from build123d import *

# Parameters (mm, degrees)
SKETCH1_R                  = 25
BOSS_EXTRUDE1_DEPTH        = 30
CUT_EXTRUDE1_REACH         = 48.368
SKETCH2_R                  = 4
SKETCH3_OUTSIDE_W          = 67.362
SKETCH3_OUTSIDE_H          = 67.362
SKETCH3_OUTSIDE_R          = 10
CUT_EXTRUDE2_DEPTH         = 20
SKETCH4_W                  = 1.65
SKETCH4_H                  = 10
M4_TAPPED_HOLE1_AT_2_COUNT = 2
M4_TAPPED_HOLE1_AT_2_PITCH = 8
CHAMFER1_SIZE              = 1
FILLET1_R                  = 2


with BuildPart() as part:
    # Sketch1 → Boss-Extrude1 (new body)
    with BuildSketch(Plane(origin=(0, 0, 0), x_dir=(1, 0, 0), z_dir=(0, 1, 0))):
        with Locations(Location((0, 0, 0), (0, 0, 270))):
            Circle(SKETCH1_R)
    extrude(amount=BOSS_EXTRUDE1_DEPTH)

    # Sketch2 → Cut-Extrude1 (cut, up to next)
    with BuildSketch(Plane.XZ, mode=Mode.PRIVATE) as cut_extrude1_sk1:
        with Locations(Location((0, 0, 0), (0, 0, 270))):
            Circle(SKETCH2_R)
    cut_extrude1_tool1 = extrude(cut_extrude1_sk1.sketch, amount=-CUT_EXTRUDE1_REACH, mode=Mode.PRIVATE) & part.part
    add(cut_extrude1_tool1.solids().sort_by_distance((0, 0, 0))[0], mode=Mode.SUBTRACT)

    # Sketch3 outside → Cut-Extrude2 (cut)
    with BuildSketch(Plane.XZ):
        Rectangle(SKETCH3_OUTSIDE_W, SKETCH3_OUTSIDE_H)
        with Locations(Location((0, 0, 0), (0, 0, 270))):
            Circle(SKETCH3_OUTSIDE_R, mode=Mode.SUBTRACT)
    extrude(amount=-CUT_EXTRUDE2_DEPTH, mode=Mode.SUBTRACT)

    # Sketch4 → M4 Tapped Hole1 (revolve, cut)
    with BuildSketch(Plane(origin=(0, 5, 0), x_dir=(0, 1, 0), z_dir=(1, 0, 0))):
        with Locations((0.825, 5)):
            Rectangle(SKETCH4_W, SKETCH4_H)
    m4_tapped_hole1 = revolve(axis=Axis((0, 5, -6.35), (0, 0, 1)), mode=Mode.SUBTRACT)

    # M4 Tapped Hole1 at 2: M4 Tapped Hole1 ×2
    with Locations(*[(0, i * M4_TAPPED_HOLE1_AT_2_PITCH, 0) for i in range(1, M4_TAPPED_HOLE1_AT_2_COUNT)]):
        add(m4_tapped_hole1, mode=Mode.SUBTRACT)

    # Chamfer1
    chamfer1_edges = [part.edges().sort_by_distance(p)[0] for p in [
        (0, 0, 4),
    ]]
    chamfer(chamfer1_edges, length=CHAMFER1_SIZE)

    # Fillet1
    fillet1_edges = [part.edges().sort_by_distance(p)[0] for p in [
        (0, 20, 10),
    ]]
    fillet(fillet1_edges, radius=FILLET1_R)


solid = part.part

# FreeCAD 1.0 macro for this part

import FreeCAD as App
import Part
import Sketcher
Q = App.Units.Quantity


def edges_at(feature, points):
    """Names of the edges that pass closest to the given points."""
    edges = feature.Shape.Edges
    near = lambda p: min(range(len(edges)), key=lambda i: edges[i].distToShape(Part.Vertex(*p))[0])
    return sorted({f"Edge{near(p) + 1}" for p in points})

doc = App.newDocument("Part")
params = doc.addObject("Spreadsheet::Sheet", "Params")
for row, (alias, value) in enumerate([
    ("sketch1_diameter", "50 mm"),
    ("pad1_length", "30 mm"),
    ("sketch2_diameter", "8 mm"),
    ("sketch3_diameter", "20 mm"),
    ("pocket2_length", "20 mm"),
    ("sketch4_height", "10 mm"),
    ("sketch4_width", "1.65 mm"),
    ("groove_angle", "360 deg"),
    ("linearpattern_pitch", "8 mm"),
    ("chamfer_size", "1 mm"),
    ("fillet_radius", "2 mm"),
], start=1):
    params.set(f"A{row}", alias)
    params.set(f"B{row}", "=" + value)
    params.setAlias(f"B{row}", alias)

body = doc.addObject("PartDesign::Body", "Body")

# Sketch on XZ plane
sketch1 = doc.addObject("Sketcher::SketchObject", "Sketch")
body.addObject(sketch1)
sketch1.AttachmentSupport = (doc.XZ_Plane, [""])
sketch1.MapMode = "FlatFace"
sketch1.addGeometry(Part.Circle(App.Vector(0, 0, 0), App.Vector(0, 0, 1), 25), False)
sketch1.addConstraint(Sketcher.Constraint("Coincident", 0, 3, -1, 1))
sketch1.addConstraint(Sketcher.Constraint("Diameter", 0, Q("50 mm")))
sketch1.setExpression("Constraints[1]", "Params.sketch1_diameter")
pad1 = doc.addObject("PartDesign::Pad", "Pad")
body.addObject(pad1)
pad1.Profile = sketch1
pad1.setExpression("Length", "Params.pad1_length")
pad1.Reversed = True

# Sketch on XZ plane
sketch2 = doc.addObject("Sketcher::SketchObject", "Sketch001")
body.addObject(sketch2)
sketch2.AttachmentSupport = (doc.XZ_Plane, [""])
sketch2.MapMode = "FlatFace"
sketch2.addGeometry(Part.Circle(App.Vector(0, 0, 0), App.Vector(0, 0, 1), 4), False)
sketch2.addConstraint(Sketcher.Constraint("Coincident", 0, 3, -1, 1))
sketch2.addConstraint(Sketcher.Constraint("Diameter", 0, Q("8 mm")))
sketch2.setExpression("Constraints[1]", "Params.sketch2_diameter")
pocket1 = doc.addObject("PartDesign::Pocket", "Pocket")
body.addObject(pocket1)
pocket1.Profile = sketch2
pocket1.Type = "UpToFirst"

# Sketch on XZ plane
sketch3 = doc.addObject("Sketcher::SketchObject", "Sketch002")
body.addObject(sketch3)
sketch3.AttachmentSupport = (doc.XZ_Plane, [""])
sketch3.MapMode = "FlatFace"
sketch3.addGeometry(Part.LineSegment(App.Vector(-34, 34, 0), App.Vector(-34, -34, 0)), False)
sketch3.addGeometry(Part.LineSegment(App.Vector(-34, -34, 0), App.Vector(34, -34, 0)), False)
sketch3.addGeometry(Part.LineSegment(App.Vector(34, -34, 0), App.Vector(34, 34, 0)), False)
sketch3.addGeometry(Part.LineSegment(App.Vector(34, 34, 0), App.Vector(-34, 34, 0)), False)
sketch3.addGeometry(Part.Circle(App.Vector(0, 0, 0), App.Vector(0, 0, 1), 10), False)
sketch3.addConstraint(Sketcher.Constraint("Coincident", 0, 2, 1, 1))
sketch3.addConstraint(Sketcher.Constraint("Coincident", 1, 2, 2, 1))
sketch3.addConstraint(Sketcher.Constraint("Coincident", 2, 2, 3, 1))
sketch3.addConstraint(Sketcher.Constraint("Coincident", 3, 2, 0, 1))
sketch3.addConstraint(Sketcher.Constraint("Vertical", 0))
sketch3.addConstraint(Sketcher.Constraint("Horizontal", 1))
sketch3.addConstraint(Sketcher.Constraint("Vertical", 2))
sketch3.addConstraint(Sketcher.Constraint("Horizontal", 3))
sketch3.addConstraint(Sketcher.Constraint("Coincident", 4, 3, -1, 1))
sketch3.addConstraint(Sketcher.Constraint("Symmetric", 0, 2, 2, 2, -1, 1))
sketch3.addConstraint(Sketcher.Constraint("Equal", 3, 0))
sketch3.addConstraint(Sketcher.Constraint("Diameter", 4, Q("20 mm")))
sketch3.addConstraint(Sketcher.Constraint("DistanceX", 1, 1, 1, 2, Q("67.362 mm")))
sketch3.setExpression("Constraints[11]", "Params.sketch3_diameter")
pocket2 = doc.addObject("PartDesign::Pocket", "Pocket001")
body.addObject(pocket2)
pocket2.Profile = sketch3
pocket2.setExpression("Length", "Params.pocket2_length")

# Sketch on YZ plane
sketch4 = doc.addObject("Sketcher::SketchObject", "Sketch003")
body.addObject(sketch4)
sketch4.AttachmentSupport = (doc.YZ_Plane, [""])
sketch4.MapMode = "FlatFace"
sketch4.addGeometry(Part.LineSegment(App.Vector(5, 10, 0), App.Vector(5, 0, 0)), False)
sketch4.addGeometry(Part.LineSegment(App.Vector(5, 0, 0), App.Vector(6.7, 0, 0)), False)
sketch4.addGeometry(Part.LineSegment(App.Vector(6.7, 0, 0), App.Vector(6.7, 10, 0)), False)
sketch4.addGeometry(Part.LineSegment(App.Vector(6.7, 10, 0), App.Vector(5, 10, 0)), False)
sketch4.addGeometry(Part.LineSegment(App.Vector(5, 0, 0), App.Vector(5, 10, 0)), True)  # axis
sketch4.addConstraint(Sketcher.Constraint("Coincident", 0, 2, 1, 1))
sketch4.addConstraint(Sketcher.Constraint("Coincident", 1, 2, 2, 1))
sketch4.addConstraint(Sketcher.Constraint("Coincident", 2, 2, 3, 1))
sketch4.addConstraint(Sketcher.Constraint("Coincident", 3, 2, 0, 1))
sketch4.addConstraint(Sketcher.Constraint("Vertical", 0))
sketch4.addConstraint(Sketcher.Constraint("Horizontal", 1))
sketch4.addConstraint(Sketcher.Constraint("Vertical", 2))
sketch4.addConstraint(Sketcher.Constraint("Horizontal", 3))
sketch4.addConstraint(Sketcher.Constraint("Vertical", 4))
sketch4.addConstraint(Sketcher.Constraint("Coincident", 4, 1, 0, 2))
sketch4.addConstraint(Sketcher.Constraint("PointOnObject", 0, 2, -1))
sketch4.addConstraint(Sketcher.Constraint("Horizontal", 2, 2, 4, 2))
sketch4.addConstraint(Sketcher.Constraint("DistanceY", 0, 2, 0, 1, Q("10 mm")))
sketch4.addConstraint(Sketcher.Constraint("DistanceX", -1, 1, 0, 2, Q("5 mm")))
sketch4.addConstraint(Sketcher.Constraint("DistanceX", 1, 1, 1, 2, Q("1.65 mm")))
sketch4.setExpression("Constraints[12]", "Params.sketch4_height")
sketch4.setExpression("Constraints[14]", "Params.sketch4_width")
groove = doc.addObject("PartDesign::Groove", "Groove")
body.addObject(groove)
groove.Profile = sketch4
groove.ReferenceAxis = (sketch4, ["Axis0"])
groove.setExpression("Angle", "Params.groove_angle")
doc.recompute()

linearpattern = doc.addObject("PartDesign::LinearPattern", "LinearPattern")
body.addObject(linearpattern)
linearpattern.Originals = [groove]
linearpattern.Direction = (doc.Y_Axis, [""])
linearpattern.Mode = "offset"
linearpattern.setExpression("Offset", "Params.linearpattern_pitch")
linearpattern.Occurrences = 2
body.Tip = linearpattern
doc.recompute()

chamfer = doc.addObject("PartDesign::Chamfer", "Chamfer")
body.addObject(chamfer)
chamfer.Base = (linearpattern, edges_at(linearpattern, [(0, 0, 4)]))
chamfer.setExpression("Size", "Params.chamfer_size")
doc.recompute()

fillet = doc.addObject("PartDesign::Fillet", "Fillet")
body.addObject(fillet)
fillet.Base = (chamfer, edges_at(chamfer, [(0, 20, 10)]))
fillet.setExpression("Radius", "Params.fillet_radius")

doc.recompute()
